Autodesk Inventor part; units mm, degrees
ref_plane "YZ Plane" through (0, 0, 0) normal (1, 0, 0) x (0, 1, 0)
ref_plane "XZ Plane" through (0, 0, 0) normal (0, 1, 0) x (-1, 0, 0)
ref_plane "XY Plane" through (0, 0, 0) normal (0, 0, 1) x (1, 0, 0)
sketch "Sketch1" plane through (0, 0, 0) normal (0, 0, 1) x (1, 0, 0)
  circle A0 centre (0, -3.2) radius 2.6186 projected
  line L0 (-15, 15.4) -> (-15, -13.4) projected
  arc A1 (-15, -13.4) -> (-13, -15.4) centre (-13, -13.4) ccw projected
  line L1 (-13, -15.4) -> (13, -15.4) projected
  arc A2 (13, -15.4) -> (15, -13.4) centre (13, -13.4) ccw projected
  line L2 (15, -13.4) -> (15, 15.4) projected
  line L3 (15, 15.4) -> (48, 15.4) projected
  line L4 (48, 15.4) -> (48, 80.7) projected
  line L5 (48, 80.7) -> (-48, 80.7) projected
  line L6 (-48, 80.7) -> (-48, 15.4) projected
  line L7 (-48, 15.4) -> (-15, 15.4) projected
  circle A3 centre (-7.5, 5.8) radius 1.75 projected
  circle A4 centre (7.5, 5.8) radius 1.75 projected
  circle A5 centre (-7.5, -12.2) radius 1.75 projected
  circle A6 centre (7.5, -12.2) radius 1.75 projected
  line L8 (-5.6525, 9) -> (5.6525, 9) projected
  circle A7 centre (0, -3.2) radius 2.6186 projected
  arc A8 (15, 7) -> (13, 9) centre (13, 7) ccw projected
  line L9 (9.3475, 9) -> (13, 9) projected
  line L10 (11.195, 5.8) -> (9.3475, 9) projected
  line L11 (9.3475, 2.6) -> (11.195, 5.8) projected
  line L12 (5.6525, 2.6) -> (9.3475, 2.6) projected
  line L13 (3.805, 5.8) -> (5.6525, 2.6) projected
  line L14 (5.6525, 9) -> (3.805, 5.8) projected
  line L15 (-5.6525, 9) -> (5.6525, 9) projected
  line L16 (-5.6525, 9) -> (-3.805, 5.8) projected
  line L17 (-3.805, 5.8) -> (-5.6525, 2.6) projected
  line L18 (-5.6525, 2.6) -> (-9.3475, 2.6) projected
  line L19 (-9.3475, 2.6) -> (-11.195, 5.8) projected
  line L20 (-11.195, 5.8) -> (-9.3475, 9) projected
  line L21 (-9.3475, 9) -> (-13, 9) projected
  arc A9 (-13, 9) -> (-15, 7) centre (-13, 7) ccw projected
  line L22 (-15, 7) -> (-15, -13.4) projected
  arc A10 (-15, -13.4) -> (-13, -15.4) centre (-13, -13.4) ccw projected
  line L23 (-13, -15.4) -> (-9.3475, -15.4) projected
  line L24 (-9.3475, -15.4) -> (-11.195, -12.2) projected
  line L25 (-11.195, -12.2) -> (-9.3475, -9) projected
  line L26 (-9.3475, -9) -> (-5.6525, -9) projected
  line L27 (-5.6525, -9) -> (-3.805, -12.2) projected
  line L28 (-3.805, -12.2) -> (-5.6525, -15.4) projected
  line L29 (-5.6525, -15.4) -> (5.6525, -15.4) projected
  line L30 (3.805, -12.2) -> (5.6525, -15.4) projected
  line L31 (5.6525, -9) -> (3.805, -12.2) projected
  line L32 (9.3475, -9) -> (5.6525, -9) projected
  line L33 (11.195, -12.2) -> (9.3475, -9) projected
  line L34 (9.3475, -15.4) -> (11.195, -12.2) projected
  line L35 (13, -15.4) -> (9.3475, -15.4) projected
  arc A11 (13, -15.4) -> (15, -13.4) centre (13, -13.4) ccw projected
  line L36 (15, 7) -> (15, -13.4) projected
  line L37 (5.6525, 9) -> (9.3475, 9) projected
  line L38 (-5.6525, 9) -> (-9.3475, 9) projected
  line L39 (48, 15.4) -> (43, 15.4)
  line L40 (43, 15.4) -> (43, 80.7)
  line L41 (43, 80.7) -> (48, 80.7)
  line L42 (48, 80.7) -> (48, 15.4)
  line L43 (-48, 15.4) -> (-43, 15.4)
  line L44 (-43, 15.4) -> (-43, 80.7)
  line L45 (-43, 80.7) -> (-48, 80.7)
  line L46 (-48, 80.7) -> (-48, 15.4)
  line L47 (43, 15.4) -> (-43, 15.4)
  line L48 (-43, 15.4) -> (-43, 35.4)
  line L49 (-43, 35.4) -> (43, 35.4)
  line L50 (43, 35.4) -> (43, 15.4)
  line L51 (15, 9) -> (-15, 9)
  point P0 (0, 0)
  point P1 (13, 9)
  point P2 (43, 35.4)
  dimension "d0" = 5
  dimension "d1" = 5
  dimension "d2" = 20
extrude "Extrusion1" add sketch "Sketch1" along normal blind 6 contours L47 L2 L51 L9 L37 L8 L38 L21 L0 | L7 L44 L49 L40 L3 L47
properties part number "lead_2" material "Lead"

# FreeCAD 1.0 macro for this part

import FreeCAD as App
import Part
import Sketcher
Q = App.Units.Quantity


def add_polygon(sketch, points):
    """Adds a closed chain of lines whose ends are joined by coincident constraints."""
    first, n = sketch.GeometryCount, len(points)
    for a, b in zip(points, points[1:] + points[:1]):
        sketch.addGeometry(Part.LineSegment(App.Vector(*a, 0), App.Vector(*b, 0)), False)
    for i in range(n):
        sketch.addConstraint(Sketcher.Constraint("Coincident", first + i, 2, first + (i + 1) % n, 1))

doc = App.newDocument("Part")
body = doc.addObject("PartDesign::Body", "Body")

# Sketch on XY plane
sketch1 = body.newObject("Sketcher::SketchObject", "Sketch")
sketch1.AttachmentSupport = (doc.getObject("XY_Plane"), [""])
sketch1.MapMode = "FlatFace"
add_polygon(sketch1, [(15, 9), (15, 15.4), (43, 15.4), (43, 35.4), (-43, 35.4), (-43, 15.4), (-15, 15.4), (-15, 9)])  # lines 0-7
sketch1.addConstraint([
    Sketcher.Constraint("Vertical", 0),
    Sketcher.Constraint("Horizontal", 1),
    Sketcher.Constraint("Vertical", 2),
    Sketcher.Constraint("Horizontal", 3),
    Sketcher.Constraint("Vertical", 4),
    Sketcher.Constraint("Horizontal", 5),
    Sketcher.Constraint("Vertical", 6),
    Sketcher.Constraint("Horizontal", 7),
    Sketcher.Constraint("Symmetric", 1, 2, 4, 2, -2),
    Sketcher.Constraint("Equal", 1, 5),
    Sketcher.Constraint("DistanceY", 2, 1, 2, 2, Q("20 mm")),
    Sketcher.Constraint("DistanceX", 1, 1, 1, 2, Q("28 mm")),
    Sketcher.Constraint("DistanceX", 3, 2, 3, 1, Q("86 mm")),
    Sketcher.Constraint("DistanceY", 0, 1, 0, 2, Q("6.4 mm")),
    Sketcher.Constraint("DistanceY", -1, 1, 6, 2, Q("9 mm")),
])
pad1 = body.newObject("PartDesign::Pad", "Pad")
pad1.Profile = sketch1
pad1.Length = 6

doc.recompute()
